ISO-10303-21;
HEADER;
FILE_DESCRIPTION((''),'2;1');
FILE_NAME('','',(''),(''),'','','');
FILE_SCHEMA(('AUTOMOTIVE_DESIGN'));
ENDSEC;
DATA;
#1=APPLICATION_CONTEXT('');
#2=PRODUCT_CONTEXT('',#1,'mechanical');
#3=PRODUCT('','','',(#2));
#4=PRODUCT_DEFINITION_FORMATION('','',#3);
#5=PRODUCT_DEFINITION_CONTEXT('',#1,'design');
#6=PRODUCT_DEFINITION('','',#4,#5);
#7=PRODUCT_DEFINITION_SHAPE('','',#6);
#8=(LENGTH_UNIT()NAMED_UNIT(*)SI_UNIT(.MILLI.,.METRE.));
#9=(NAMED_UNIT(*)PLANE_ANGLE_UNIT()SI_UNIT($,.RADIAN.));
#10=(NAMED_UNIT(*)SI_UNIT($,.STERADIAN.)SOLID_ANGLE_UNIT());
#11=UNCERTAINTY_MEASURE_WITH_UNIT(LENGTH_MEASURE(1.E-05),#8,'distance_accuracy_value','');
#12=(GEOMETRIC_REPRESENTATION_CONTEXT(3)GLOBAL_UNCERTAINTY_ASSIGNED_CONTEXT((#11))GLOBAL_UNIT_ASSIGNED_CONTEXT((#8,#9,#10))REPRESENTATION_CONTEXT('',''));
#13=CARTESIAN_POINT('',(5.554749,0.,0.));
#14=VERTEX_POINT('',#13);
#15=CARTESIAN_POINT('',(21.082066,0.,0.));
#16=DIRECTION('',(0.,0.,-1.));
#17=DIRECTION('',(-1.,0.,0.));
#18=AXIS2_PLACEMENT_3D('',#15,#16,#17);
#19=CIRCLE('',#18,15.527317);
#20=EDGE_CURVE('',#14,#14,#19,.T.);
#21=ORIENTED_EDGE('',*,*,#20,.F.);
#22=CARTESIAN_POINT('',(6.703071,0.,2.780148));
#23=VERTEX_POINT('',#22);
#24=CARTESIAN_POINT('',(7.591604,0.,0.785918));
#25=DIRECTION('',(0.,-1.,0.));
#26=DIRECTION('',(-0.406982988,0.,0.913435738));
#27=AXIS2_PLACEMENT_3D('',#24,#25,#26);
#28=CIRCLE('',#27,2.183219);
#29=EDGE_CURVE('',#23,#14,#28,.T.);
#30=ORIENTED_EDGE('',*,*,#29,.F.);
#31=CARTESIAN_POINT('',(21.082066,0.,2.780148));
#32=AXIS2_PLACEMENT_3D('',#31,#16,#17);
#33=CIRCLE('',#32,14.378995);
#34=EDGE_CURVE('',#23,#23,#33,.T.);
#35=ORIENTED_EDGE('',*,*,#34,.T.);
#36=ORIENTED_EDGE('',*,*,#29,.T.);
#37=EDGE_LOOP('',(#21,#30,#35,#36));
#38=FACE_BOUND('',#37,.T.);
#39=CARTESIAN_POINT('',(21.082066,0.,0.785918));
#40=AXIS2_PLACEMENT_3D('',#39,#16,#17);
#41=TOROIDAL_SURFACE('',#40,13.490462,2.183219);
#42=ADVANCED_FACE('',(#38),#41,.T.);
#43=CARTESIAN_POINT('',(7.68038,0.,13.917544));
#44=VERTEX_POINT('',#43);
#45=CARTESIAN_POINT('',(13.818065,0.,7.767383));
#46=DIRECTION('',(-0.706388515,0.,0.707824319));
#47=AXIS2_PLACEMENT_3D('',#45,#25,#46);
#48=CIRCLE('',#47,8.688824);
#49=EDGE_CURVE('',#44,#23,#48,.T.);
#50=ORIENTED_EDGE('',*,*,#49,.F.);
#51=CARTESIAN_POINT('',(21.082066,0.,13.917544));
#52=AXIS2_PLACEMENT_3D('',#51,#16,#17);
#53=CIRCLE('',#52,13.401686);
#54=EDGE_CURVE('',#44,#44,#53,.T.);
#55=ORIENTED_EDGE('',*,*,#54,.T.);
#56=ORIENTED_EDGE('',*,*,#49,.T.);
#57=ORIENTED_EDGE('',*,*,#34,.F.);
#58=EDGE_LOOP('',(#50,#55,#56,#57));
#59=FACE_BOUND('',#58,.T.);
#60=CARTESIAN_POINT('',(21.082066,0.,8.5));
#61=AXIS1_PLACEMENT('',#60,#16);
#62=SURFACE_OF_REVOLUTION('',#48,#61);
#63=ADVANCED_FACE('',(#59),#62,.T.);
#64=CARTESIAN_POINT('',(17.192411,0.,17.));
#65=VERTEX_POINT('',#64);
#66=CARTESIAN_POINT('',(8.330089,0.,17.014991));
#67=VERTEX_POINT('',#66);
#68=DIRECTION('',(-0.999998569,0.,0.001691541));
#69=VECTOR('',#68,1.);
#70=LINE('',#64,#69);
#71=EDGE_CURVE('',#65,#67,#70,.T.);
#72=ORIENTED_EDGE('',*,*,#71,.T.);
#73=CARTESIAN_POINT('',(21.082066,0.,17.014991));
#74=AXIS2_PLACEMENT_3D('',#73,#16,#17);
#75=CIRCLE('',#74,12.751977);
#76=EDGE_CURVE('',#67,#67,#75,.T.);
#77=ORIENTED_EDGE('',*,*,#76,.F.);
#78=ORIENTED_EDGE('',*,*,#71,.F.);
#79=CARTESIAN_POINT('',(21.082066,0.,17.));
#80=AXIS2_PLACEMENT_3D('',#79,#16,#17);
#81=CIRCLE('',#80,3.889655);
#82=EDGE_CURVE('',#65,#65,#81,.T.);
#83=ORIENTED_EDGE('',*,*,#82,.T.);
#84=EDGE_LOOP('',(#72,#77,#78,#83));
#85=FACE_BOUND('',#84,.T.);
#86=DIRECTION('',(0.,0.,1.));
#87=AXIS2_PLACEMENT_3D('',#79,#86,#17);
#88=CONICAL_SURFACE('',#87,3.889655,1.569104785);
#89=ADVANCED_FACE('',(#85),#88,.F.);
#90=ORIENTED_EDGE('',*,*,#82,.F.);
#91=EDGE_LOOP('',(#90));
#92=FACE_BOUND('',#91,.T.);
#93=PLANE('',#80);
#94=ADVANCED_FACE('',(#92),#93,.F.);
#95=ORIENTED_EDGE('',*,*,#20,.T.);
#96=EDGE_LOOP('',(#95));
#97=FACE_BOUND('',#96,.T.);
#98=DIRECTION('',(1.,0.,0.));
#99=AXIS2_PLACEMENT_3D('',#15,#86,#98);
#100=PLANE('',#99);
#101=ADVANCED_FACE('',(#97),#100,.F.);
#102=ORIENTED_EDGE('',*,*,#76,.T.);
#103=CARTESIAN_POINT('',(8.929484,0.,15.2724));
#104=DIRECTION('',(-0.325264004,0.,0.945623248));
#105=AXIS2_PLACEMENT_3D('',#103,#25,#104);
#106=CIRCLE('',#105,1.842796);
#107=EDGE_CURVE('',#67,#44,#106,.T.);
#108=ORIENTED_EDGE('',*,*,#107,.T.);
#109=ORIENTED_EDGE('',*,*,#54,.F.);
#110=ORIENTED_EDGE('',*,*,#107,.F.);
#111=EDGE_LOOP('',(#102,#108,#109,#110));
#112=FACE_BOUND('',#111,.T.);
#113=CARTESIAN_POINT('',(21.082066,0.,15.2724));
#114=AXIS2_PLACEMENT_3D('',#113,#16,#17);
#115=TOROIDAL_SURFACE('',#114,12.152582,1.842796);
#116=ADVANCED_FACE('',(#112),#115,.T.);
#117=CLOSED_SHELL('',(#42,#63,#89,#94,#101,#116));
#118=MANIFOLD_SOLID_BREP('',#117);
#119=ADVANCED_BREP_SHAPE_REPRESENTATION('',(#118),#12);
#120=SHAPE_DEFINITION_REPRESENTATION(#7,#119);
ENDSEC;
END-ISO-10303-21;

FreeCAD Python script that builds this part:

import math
import FreeCAD as App
import Part
import Sketcher
Q = App.Units.Quantity

doc = App.newDocument("Part")
body = doc.addObject("PartDesign::Body", "Body")

# Sketch on XZ plane
sketch1 = doc.addObject("Sketcher::SketchObject", "Sketch")
body.addObject(sketch1)
sketch1.AttachmentSupport = (doc.XZ_Plane, [""])
sketch1.MapMode = "FlatFace"
sketch1.addGeometry(Part.LineSegment(App.Vector(17.2, 17, 0), App.Vector(8.3, 17, 0)), False)
sketch1.addGeometry(Part.ArcOfCircle(Part.Circle(App.Vector(8.9, 15.3, 0), App.Vector(0, 0, 1), 1.8), math.radians(109), math.radians(227)), False)
sketch1.addGeometry(Part.ArcOfCircle(Part.Circle(App.Vector(13.8, 7.8, 0), App.Vector(0, 0, 1), 8.7), math.radians(135), math.radians(215)), False)
sketch1.addGeometry(Part.ArcOfCircle(Part.Circle(App.Vector(7.6, 0.8, 0), App.Vector(0, 0, 1), 2.2), math.radians(114), math.radians(201)), False)
sketch1.addGeometry(Part.LineSegment(App.Vector(5.6, 0, 0), App.Vector(21.1, 0, 0)), False)
sketch1.addGeometry(Part.LineSegment(App.Vector(21.1, 0, 0), App.Vector(21.1, 17, 0)), False)
sketch1.addGeometry(Part.LineSegment(App.Vector(21.1, 17, 0), App.Vector(17.2, 17, 0)), False)
sketch1.addGeometry(Part.LineSegment(App.Vector(21.1, 17, 0), App.Vector(21.1, 0, 0)), True)  # axis
sketch1.addConstraint(Sketcher.Constraint("Coincident", 0, 2, 1, 1))
sketch1.addConstraint(Sketcher.Constraint("Coincident", 1, 2, 2, 1))
sketch1.addConstraint(Sketcher.Constraint("Coincident", 2, 2, 3, 1))
sketch1.addConstraint(Sketcher.Constraint("Coincident", 3, 2, 4, 1))
sketch1.addConstraint(Sketcher.Constraint("Coincident", 4, 2, 5, 1))
sketch1.addConstraint(Sketcher.Constraint("Coincident", 5, 2, 6, 1))
sketch1.addConstraint(Sketcher.Constraint("Coincident", 6, 2, 0, 1))
sketch1.addConstraint(Sketcher.Constraint("Horizontal", 4))
sketch1.addConstraint(Sketcher.Constraint("Vertical", 5))
sketch1.addConstraint(Sketcher.Constraint("Horizontal", 6))
sketch1.addConstraint(Sketcher.Constraint("Vertical", 7))
sketch1.addConstraint(Sketcher.Constraint("Coincident", 7, 2, 4, 2))
sketch1.addConstraint(Sketcher.Constraint("PointOnObject", 3, 2, -1))
sketch1.addConstraint(Sketcher.Constraint("Horizontal", 0, 2, 7, 1))
sketch1.addConstraint(Sketcher.Constraint("DistanceY", 5, 1, 5, 2, Q("17 mm")))
sketch1.addConstraint(Sketcher.Constraint("Radius", 3, Q("2.183219 mm")))
sketch1.addConstraint(Sketcher.Constraint("Radius", 1, Q("1.842796 mm")))
sketch1.addConstraint(Sketcher.Constraint("Radius", 2, Q("8.688824 mm")))
sketch1.addConstraint(Sketcher.Constraint("DistanceX", 2, 3, 4, 2, Q("7.264001 mm")))
sketch1.addConstraint(Sketcher.Constraint("DistanceY", 7, 2, 7, 1, Q("17.014991 mm")))
sketch1.addConstraint(Sketcher.Constraint("DistanceY", -1, 1, 1, 3, Q("15.2724 mm")))
sketch1.addConstraint(Sketcher.Constraint("DistanceX", 4, 1, 4, 2, Q("15.527317 mm")))
sketch1.addConstraint(Sketcher.Constraint("DistanceX", 6, 2, 6, 1, Q("3.889655 mm")))
sketch1.addConstraint(Sketcher.Constraint("DistanceX", -1, 1, 0, 2, Q("8.330089 mm")))
sketch1.addConstraint(Sketcher.Constraint("DistanceX", -1, 1, 1, 2, Q("7.68038 mm")))
sketch1.addConstraint(Sketcher.Constraint("DistanceX", -1, 1, 2, 2, Q("6.703071 mm")))
sketch1.addConstraint(Sketcher.Constraint("DistanceX", -1, 1, 3, 2, Q("5.554749 mm")))
revolution = doc.addObject("PartDesign::Revolution", "Revolution")
body.addObject(revolution)
revolution.Profile = sketch1
revolution.ReferenceAxis = (sketch1, ["Axis0"])
revolution.Angle = 360

doc.recompute()
